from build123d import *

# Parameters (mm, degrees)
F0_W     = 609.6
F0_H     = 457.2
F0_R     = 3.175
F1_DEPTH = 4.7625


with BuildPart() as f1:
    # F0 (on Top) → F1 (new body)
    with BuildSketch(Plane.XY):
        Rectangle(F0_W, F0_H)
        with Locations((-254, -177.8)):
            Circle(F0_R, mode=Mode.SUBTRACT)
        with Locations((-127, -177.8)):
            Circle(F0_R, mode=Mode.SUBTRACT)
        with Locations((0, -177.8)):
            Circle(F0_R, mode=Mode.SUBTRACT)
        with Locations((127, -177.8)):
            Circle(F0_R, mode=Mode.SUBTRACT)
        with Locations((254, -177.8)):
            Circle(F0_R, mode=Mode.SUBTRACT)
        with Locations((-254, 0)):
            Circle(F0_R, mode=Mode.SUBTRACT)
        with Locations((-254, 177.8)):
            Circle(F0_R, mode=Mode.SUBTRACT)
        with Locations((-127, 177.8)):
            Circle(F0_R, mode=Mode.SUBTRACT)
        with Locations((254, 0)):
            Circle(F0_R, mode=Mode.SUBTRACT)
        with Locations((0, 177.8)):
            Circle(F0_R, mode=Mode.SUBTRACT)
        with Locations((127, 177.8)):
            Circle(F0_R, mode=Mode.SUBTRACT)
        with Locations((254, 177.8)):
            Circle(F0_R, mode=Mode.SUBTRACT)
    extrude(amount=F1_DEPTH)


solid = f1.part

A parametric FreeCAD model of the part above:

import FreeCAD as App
import Part
import Sketcher
from FreeCAD import Vector
Q = App.Units.Quantity


def add_polygon(sketch, points):
    """Adds a closed chain of lines whose ends are joined by coincident constraints."""
    first, n = sketch.GeometryCount, len(points)
    for a, b in zip(points, points[1:] + points[:1]):
        sketch.addGeometry(Part.LineSegment(App.Vector(*a, 0), App.Vector(*b, 0)), False)
    for i in range(n):
        sketch.addConstraint(Sketcher.Constraint("Coincident", first + i, 2, first + (i + 1) % n, 1))

doc = App.newDocument("Part")
body = doc.addObject("PartDesign::Body", "Body")

sketch1 = body.newObject("Sketcher::SketchObject", "Sketch")
sketch1.AttachmentSupport = (doc.getObject("XY_Plane"), [""])
sketch1.MapMode = "FlatFace"
add_polygon(sketch1, [(-304.8, 228.6), (-304.8, -228.6), (304.8, -228.6), (304.8, 228.6)])
sketch1.addGeometry(Part.Circle(Vector(-254, -177.8, 0), Vector(0, 0, 1), 3.2), False)
sketch1.addGeometry(Part.Circle(Vector(-127, -177.8, 0), Vector(0, 0, 1), 3.2), False)
sketch1.addGeometry(Part.Circle(Vector(0, -177.8, 0), Vector(0, 0, 1), 3.2), False)
sketch1.addGeometry(Part.Circle(Vector(127, -177.8, 0), Vector(0, 0, 1), 3.2), False)
sketch1.addGeometry(Part.Circle(Vector(254, -177.8, 0), Vector(0, 0, 1), 3.2), False)
sketch1.addGeometry(Part.Circle(Vector(-254, 0, 0), Vector(0, 0, 1), 3.2), False)
sketch1.addGeometry(Part.Circle(Vector(-254, 177.8, 0), Vector(0, 0, 1), 3.2), False)
sketch1.addGeometry(Part.Circle(Vector(-127, 177.8, 0), Vector(0, 0, 1), 3.2), False)
sketch1.addGeometry(Part.Circle(Vector(254, 0, 0), Vector(0, 0, 1), 3.2), False)
sketch1.addGeometry(Part.Circle(Vector(0, 177.8, 0), Vector(0, 0, 1), 3.2), False)
sketch1.addGeometry(Part.Circle(Vector(127, 177.8, 0), Vector(0, 0, 1), 3.2), False)
sketch1.addGeometry(Part.Circle(Vector(254, 177.8, 0), Vector(0, 0, 1), 3.2), False)
sketch1.addConstraint(Sketcher.Constraint("Vertical", 0))
sketch1.addConstraint(Sketcher.Constraint("Horizontal", 1))
sketch1.addConstraint(Sketcher.Constraint("Vertical", 2))
sketch1.addConstraint(Sketcher.Constraint("Horizontal", 3))
sketch1.addConstraint(Sketcher.Constraint("Equal", 4, 5))
sketch1.addConstraint(Sketcher.Constraint("Equal", 5, 6))
sketch1.addConstraint(Sketcher.Constraint("Equal", 6, 7))
sketch1.addConstraint(Sketcher.Constraint("Equal", 7, 8))
sketch1.addConstraint(Sketcher.Constraint("Equal", 8, 9))
sketch1.addConstraint(Sketcher.Constraint("Equal", 9, 10))
sketch1.addConstraint(Sketcher.Constraint("Equal", 10, 11))
sketch1.addConstraint(Sketcher.Constraint("Equal", 11, 12))
sketch1.addConstraint(Sketcher.Constraint("Equal", 12, 13))
sketch1.addConstraint(Sketcher.Constraint("Equal", 13, 14))
sketch1.addConstraint(Sketcher.Constraint("Equal", 14, 15))
sketch1.addConstraint(Sketcher.Constraint("Symmetric", 8, 3, 10, 3, -1, 1))
sketch1.addConstraint(Sketcher.Constraint("Symmetric", 7, 3, 11, 3, -1, 1))
sketch1.addConstraint(Sketcher.Constraint("Symmetric", 9, 3, 12, 3, -1, 1))
sketch1.addConstraint(Sketcher.Constraint("Symmetric", 6, 3, 13, 3, -1, 1))
sketch1.addConstraint(Sketcher.Constraint("Symmetric", 5, 3, 14, 3, -1, 1))
sketch1.addConstraint(Sketcher.Constraint("Symmetric", 4, 3, 15, 3, -1, 1))
sketch1.addConstraint(Sketcher.Constraint("Symmetric", 0, 2, 2, 2, -1, 1))
sketch1.addConstraint(Sketcher.Constraint("Symmetric", 5, 3, 7, 3, -2))
sketch1.addConstraint(Sketcher.Constraint("Symmetric", 4, 3, 8, 3, -2))
sketch1.addConstraint(Sketcher.Constraint("PointOnObject", 6, 3, -2))
sketch1.addConstraint(Sketcher.Constraint("PointOnObject", 9, 3, -1))
sketch1.addConstraint(Sketcher.Constraint("Horizontal", 4, 3, 5, 3))
sketch1.addConstraint(Sketcher.Constraint("Horizontal", 5, 3, 6, 3))
sketch1.addConstraint(Sketcher.Constraint("Vertical", 4, 3, 9, 3))
sketch1.addConstraint(Sketcher.Constraint("Diameter", 4, Q("0.25 in")))
sketch1.addConstraint(Sketcher.Constraint("DistanceX", 1, 1, 1, 2, Q("24 in")))
sketch1.addConstraint(Sketcher.Constraint("DistanceY", 0, 2, 0, 1, Q("18 in")))
sketch1.addConstraint(Sketcher.Constraint("DistanceX", 4, 3, -1, 1, Q("10 in")))
sketch1.addConstraint(Sketcher.Constraint("DistanceY", 4, 3, -1, 1, Q("7 in")))
sketch1.addConstraint(Sketcher.Constraint("DistanceX", 5, 3, -1, 1, Q("5 in")))
pad1 = body.newObject("PartDesign::Pad", "Pad")
pad1.Profile = sketch1
pad1.Length = Q("0.1875 in")

doc.recompute()
